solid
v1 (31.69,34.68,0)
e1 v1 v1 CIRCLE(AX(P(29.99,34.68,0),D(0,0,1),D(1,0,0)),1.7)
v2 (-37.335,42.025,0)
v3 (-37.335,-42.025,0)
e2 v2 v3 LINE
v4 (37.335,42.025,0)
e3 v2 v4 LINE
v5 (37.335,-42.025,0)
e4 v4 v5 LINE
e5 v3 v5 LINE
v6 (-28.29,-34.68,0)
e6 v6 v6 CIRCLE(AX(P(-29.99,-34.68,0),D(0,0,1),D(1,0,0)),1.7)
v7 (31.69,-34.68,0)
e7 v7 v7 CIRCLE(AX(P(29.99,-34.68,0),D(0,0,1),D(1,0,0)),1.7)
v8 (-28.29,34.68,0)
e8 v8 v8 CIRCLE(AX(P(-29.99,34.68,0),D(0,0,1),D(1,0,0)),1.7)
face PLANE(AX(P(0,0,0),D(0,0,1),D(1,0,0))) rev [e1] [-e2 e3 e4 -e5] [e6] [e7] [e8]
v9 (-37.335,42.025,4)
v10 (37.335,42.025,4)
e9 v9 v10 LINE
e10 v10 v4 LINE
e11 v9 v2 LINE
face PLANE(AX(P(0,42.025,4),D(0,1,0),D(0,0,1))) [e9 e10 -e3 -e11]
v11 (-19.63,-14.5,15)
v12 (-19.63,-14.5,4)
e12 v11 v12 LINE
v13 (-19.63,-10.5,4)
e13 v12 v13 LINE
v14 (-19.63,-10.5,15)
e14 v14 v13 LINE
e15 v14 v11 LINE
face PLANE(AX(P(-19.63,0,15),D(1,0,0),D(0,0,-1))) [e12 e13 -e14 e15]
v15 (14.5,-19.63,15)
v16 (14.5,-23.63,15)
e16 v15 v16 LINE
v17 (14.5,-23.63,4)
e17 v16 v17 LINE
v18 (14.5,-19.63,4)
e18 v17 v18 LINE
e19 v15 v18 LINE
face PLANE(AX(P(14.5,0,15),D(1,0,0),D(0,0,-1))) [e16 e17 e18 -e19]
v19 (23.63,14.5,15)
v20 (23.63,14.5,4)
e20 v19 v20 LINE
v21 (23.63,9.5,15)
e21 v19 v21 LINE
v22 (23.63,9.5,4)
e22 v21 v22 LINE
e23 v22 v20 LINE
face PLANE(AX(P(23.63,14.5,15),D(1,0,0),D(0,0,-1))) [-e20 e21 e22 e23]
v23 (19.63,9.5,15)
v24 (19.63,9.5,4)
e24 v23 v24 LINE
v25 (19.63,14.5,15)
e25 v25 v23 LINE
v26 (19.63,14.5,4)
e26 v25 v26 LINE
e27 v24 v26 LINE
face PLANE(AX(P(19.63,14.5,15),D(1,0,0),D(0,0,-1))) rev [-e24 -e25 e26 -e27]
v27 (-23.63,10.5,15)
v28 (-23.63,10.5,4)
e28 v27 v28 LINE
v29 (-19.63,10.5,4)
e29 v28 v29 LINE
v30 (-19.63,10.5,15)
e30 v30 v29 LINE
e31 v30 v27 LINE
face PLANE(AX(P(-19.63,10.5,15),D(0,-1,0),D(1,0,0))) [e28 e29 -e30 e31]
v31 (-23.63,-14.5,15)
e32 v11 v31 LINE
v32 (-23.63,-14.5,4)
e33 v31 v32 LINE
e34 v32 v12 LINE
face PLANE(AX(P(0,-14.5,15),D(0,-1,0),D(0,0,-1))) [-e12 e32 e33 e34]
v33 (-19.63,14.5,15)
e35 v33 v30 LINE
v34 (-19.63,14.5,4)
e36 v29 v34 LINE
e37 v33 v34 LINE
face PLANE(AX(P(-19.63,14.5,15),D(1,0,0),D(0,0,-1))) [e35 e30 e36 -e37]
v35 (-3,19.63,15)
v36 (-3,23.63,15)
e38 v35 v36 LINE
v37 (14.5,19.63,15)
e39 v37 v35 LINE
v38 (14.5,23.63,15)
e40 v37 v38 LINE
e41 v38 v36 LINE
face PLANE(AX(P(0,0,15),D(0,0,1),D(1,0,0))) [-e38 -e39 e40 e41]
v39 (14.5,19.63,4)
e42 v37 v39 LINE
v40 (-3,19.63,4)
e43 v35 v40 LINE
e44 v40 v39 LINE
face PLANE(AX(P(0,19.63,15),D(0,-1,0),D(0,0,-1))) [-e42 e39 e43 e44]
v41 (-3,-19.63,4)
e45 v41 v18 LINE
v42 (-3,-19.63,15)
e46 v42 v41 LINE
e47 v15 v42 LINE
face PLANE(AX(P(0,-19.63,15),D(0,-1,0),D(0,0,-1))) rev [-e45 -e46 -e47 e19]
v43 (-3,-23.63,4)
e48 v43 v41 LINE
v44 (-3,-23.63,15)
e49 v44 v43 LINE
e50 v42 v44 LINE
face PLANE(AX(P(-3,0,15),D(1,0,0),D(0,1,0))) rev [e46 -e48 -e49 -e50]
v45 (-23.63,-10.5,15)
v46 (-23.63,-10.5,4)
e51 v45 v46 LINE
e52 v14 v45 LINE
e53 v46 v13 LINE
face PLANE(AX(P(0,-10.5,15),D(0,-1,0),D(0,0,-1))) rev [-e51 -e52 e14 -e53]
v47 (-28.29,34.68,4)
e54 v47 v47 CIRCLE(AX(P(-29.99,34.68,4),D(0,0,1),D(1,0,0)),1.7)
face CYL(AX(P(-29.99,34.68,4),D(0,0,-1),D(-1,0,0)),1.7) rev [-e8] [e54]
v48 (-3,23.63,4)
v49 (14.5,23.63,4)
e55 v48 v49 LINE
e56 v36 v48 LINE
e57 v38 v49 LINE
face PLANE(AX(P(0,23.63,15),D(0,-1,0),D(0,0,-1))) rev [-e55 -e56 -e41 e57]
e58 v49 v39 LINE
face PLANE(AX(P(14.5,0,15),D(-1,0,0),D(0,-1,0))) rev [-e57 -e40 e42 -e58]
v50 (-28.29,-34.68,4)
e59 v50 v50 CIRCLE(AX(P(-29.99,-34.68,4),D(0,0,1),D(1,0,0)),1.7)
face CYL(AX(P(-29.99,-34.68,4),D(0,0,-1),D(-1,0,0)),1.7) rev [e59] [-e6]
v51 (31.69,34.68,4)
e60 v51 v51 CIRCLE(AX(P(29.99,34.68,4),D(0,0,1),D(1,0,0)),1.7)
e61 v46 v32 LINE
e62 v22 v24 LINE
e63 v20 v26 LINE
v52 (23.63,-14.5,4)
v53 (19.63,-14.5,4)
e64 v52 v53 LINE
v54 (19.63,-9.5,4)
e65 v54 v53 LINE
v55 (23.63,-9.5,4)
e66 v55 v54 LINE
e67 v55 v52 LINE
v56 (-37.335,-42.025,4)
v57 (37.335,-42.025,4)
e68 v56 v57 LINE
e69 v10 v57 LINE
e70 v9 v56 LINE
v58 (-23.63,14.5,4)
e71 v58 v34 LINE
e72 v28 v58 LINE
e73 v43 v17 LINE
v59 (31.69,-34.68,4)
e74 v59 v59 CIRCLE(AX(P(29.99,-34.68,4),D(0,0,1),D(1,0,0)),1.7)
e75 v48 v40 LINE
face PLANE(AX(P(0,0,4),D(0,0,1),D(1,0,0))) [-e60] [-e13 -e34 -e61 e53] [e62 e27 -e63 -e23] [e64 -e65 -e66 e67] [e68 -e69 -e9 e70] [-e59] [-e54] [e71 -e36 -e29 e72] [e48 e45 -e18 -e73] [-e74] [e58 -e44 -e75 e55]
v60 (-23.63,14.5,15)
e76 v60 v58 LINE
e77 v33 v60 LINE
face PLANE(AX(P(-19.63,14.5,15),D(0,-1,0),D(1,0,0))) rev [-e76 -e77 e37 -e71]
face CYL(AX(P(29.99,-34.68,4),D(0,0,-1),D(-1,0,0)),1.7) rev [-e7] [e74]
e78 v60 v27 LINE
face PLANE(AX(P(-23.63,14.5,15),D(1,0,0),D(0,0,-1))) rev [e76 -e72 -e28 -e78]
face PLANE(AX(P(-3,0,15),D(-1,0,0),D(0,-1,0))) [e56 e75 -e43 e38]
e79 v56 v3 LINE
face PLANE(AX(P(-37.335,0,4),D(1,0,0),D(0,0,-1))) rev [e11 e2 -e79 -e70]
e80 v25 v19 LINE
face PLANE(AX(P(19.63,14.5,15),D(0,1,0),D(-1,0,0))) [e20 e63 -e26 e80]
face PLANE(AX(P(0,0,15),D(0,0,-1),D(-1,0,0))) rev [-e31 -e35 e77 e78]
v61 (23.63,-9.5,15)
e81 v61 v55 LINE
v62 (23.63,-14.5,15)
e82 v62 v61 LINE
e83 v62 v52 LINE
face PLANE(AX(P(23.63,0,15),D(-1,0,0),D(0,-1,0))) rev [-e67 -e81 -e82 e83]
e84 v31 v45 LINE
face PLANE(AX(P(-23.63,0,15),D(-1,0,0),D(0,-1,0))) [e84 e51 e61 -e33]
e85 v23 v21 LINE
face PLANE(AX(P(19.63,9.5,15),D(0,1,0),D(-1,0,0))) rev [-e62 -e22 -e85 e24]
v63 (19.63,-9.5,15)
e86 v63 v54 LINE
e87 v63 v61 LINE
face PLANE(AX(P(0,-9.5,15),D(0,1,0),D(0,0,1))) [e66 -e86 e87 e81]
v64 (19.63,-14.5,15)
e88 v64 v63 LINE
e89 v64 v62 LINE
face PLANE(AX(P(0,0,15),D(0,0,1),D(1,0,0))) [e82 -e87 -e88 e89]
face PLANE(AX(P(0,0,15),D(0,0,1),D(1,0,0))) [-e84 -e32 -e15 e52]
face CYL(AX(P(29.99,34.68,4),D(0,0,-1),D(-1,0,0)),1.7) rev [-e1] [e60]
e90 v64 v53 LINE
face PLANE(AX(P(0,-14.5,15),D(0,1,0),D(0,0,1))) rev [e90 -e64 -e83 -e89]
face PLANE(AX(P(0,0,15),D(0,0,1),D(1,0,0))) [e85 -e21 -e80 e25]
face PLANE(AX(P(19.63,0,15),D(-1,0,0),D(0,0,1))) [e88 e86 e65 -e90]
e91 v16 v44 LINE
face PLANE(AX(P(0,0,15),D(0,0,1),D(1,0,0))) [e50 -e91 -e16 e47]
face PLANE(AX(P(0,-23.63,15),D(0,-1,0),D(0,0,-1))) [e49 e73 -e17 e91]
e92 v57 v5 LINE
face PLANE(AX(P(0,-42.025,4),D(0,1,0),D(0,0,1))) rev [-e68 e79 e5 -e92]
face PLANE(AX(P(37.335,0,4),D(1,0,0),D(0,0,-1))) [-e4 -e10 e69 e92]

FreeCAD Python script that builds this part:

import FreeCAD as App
import Part
import Sketcher
Q = App.Units.Quantity


def add_polygon(sketch, points):
    """Adds a closed chain of lines whose ends are joined by coincident constraints."""
    first, n = sketch.GeometryCount, len(points)
    for a, b in zip(points, points[1:] + points[:1]):
        sketch.addGeometry(Part.LineSegment(App.Vector(*a, 0), App.Vector(*b, 0)), False)
    for i in range(n):
        sketch.addConstraint(Sketcher.Constraint("Coincident", first + i, 2, first + (i + 1) % n, 1))

doc = App.newDocument("Part")
body = doc.addObject("PartDesign::Body", "Body")

sketch1 = body.newObject("Sketcher::SketchObject", "Sketch")
sketch1.AttachmentSupport = (doc.getObject("XY_Plane"), [""])
sketch1.MapMode = "FlatFace"
add_polygon(sketch1, [(-37.3, 42), (-37.3, -42), (37.3, -42), (37.3, 42)])
sketch1.addGeometry(Part.Circle(App.Vector(-30, -34.7, 0), App.Vector(0, 0, 1), 1.7), False)
sketch1.addGeometry(Part.Circle(App.Vector(30, -34.7, 0), App.Vector(0, 0, 1), 1.7), False)
sketch1.addGeometry(Part.Circle(App.Vector(-30, 34.7, 0), App.Vector(0, 0, 1), 1.7), False)
sketch1.addGeometry(Part.Circle(App.Vector(30, 34.7, 0), App.Vector(0, 0, 1), 1.7), False)
sketch1.addConstraint([
    Sketcher.Constraint("Vertical", 0),
    Sketcher.Constraint("Horizontal", 1),
    Sketcher.Constraint("Vertical", 2),
    Sketcher.Constraint("Horizontal", 3),
    Sketcher.Constraint("Equal", 4, 5),
    Sketcher.Constraint("Equal", 5, 6),
    Sketcher.Constraint("Equal", 6, 7),
    Sketcher.Constraint("Symmetric", 5, 3, 6, 3, -1, 1),
    Sketcher.Constraint("Symmetric", 4, 3, 7, 3, -1, 1),
    Sketcher.Constraint("Symmetric", 0, 2, 2, 2, -1, 1),
    Sketcher.Constraint("Symmetric", 4, 3, 5, 3, -2),
    Sketcher.Constraint("Diameter", 4, Q("3.4 mm")),
    Sketcher.Constraint("DistanceX", 1, 1, 1, 2, Q("74.67 mm")),
    Sketcher.Constraint("DistanceY", 0, 2, 0, 1, Q("84.05 mm")),
    Sketcher.Constraint("DistanceX", 4, 3, -1, 1, Q("29.99 mm")),
    Sketcher.Constraint("DistanceY", 4, 3, -1, 1, Q("34.68 mm")),
])
pad1 = body.newObject("PartDesign::Pad", "Pad")
pad1.Profile = sketch1
pad1.Length = 4

sketch2 = body.newObject("Sketcher::SketchObject", "Sketch001")
sketch2.AttachmentSupport = (doc.getObject("XY_Plane"), [""])
sketch2.MapMode = "FlatFace"
add_polygon(sketch2, [(-3, -19.6), (-3, -23.6), (14.5, -23.6), (14.5, -19.6)])
add_polygon(sketch2, [(-23.6, -10.5), (-23.6, -14.5), (-19.6, -14.5), (-19.6, -10.5)])
add_polygon(sketch2, [(-3, 23.6), (-3, 19.6), (14.5, 19.6), (14.5, 23.6)])
add_polygon(sketch2, [(19.6, -9.5), (19.6, -14.5), (23.6, -14.5), (23.6, -9.5)])
add_polygon(sketch2, [(-23.6, 14.5), (-23.6, 10.5), (-19.6, 10.5), (-19.6, 14.5)])
add_polygon(sketch2, [(19.6, 14.5), (19.6, 9.5), (23.6, 9.5), (23.6, 14.5)])
sketch2.addConstraint([
    Sketcher.Constraint("Vertical", 0),
    Sketcher.Constraint("Horizontal", 1),
    Sketcher.Constraint("Vertical", 2),
    Sketcher.Constraint("Horizontal", 3),
    Sketcher.Constraint("Vertical", 4),
    Sketcher.Constraint("Horizontal", 5),
    Sketcher.Constraint("Vertical", 6),
    Sketcher.Constraint("Horizontal", 7),
    Sketcher.Constraint("Vertical", 8),
    Sketcher.Constraint("Horizontal", 9),
    Sketcher.Constraint("Vertical", 10),
    Sketcher.Constraint("Horizontal", 11),
    Sketcher.Constraint("Vertical", 12),
    Sketcher.Constraint("Horizontal", 13),
    Sketcher.Constraint("Vertical", 14),
    Sketcher.Constraint("Horizontal", 15),
    Sketcher.Constraint("Vertical", 16),
    Sketcher.Constraint("Horizontal", 17),
    Sketcher.Constraint("Vertical", 18),
    Sketcher.Constraint("Horizontal", 19),
    Sketcher.Constraint("Vertical", 20),
    Sketcher.Constraint("Horizontal", 21),
    Sketcher.Constraint("Vertical", 22),
    Sketcher.Constraint("Horizontal", 23),
    Sketcher.Constraint("Symmetric", 12, 2, 18, 2, -1, 1),
    Sketcher.Constraint("Symmetric", 4, 2, 22, 2, -1, 1),
    Sketcher.Constraint("Symmetric", 5, 2, 12, 2, -2),
    Sketcher.Constraint("Symmetric", 3, 2, 8, 2, -1),
    Sketcher.Constraint("Symmetric", 1, 2, 10, 2, -1),
    Sketcher.Constraint("Symmetric", 7, 2, 16, 2, -1),
    Sketcher.Constraint("Symmetric", 15, 2, 20, 2, -1),
    Sketcher.Constraint("Vertical", 14, 2, 21, 2),
    Sketcher.Constraint("Equal", 23, 0),
    Sketcher.Constraint("Equal", 2, 4),
    Sketcher.Constraint("DistanceX", 5, 1, 5, 2, Q("4 mm")),
    Sketcher.Constraint("DistanceY", 12, 2, 12, 1, Q("5 mm")),
    Sketcher.Constraint("DistanceX", 1, 1, 1, 2, Q("17.5 mm")),
    Sketcher.Constraint("DistanceX", 0, 2, -1, 1, Q("3 mm")),
    Sketcher.Constraint("DistanceY", 7, 2, 16, 2, Q("21 mm")),
    Sketcher.Constraint("DistanceY", 0, 2, -1, 1, Q("23.63 mm")),
    Sketcher.Constraint("DistanceX", 4, 2, -1, 1, Q("23.63 mm")),
])
pad2 = body.newObject("PartDesign::Pad", "Pad001")
pad2.Profile = sketch2
pad2.Length = 15

doc.recompute()
